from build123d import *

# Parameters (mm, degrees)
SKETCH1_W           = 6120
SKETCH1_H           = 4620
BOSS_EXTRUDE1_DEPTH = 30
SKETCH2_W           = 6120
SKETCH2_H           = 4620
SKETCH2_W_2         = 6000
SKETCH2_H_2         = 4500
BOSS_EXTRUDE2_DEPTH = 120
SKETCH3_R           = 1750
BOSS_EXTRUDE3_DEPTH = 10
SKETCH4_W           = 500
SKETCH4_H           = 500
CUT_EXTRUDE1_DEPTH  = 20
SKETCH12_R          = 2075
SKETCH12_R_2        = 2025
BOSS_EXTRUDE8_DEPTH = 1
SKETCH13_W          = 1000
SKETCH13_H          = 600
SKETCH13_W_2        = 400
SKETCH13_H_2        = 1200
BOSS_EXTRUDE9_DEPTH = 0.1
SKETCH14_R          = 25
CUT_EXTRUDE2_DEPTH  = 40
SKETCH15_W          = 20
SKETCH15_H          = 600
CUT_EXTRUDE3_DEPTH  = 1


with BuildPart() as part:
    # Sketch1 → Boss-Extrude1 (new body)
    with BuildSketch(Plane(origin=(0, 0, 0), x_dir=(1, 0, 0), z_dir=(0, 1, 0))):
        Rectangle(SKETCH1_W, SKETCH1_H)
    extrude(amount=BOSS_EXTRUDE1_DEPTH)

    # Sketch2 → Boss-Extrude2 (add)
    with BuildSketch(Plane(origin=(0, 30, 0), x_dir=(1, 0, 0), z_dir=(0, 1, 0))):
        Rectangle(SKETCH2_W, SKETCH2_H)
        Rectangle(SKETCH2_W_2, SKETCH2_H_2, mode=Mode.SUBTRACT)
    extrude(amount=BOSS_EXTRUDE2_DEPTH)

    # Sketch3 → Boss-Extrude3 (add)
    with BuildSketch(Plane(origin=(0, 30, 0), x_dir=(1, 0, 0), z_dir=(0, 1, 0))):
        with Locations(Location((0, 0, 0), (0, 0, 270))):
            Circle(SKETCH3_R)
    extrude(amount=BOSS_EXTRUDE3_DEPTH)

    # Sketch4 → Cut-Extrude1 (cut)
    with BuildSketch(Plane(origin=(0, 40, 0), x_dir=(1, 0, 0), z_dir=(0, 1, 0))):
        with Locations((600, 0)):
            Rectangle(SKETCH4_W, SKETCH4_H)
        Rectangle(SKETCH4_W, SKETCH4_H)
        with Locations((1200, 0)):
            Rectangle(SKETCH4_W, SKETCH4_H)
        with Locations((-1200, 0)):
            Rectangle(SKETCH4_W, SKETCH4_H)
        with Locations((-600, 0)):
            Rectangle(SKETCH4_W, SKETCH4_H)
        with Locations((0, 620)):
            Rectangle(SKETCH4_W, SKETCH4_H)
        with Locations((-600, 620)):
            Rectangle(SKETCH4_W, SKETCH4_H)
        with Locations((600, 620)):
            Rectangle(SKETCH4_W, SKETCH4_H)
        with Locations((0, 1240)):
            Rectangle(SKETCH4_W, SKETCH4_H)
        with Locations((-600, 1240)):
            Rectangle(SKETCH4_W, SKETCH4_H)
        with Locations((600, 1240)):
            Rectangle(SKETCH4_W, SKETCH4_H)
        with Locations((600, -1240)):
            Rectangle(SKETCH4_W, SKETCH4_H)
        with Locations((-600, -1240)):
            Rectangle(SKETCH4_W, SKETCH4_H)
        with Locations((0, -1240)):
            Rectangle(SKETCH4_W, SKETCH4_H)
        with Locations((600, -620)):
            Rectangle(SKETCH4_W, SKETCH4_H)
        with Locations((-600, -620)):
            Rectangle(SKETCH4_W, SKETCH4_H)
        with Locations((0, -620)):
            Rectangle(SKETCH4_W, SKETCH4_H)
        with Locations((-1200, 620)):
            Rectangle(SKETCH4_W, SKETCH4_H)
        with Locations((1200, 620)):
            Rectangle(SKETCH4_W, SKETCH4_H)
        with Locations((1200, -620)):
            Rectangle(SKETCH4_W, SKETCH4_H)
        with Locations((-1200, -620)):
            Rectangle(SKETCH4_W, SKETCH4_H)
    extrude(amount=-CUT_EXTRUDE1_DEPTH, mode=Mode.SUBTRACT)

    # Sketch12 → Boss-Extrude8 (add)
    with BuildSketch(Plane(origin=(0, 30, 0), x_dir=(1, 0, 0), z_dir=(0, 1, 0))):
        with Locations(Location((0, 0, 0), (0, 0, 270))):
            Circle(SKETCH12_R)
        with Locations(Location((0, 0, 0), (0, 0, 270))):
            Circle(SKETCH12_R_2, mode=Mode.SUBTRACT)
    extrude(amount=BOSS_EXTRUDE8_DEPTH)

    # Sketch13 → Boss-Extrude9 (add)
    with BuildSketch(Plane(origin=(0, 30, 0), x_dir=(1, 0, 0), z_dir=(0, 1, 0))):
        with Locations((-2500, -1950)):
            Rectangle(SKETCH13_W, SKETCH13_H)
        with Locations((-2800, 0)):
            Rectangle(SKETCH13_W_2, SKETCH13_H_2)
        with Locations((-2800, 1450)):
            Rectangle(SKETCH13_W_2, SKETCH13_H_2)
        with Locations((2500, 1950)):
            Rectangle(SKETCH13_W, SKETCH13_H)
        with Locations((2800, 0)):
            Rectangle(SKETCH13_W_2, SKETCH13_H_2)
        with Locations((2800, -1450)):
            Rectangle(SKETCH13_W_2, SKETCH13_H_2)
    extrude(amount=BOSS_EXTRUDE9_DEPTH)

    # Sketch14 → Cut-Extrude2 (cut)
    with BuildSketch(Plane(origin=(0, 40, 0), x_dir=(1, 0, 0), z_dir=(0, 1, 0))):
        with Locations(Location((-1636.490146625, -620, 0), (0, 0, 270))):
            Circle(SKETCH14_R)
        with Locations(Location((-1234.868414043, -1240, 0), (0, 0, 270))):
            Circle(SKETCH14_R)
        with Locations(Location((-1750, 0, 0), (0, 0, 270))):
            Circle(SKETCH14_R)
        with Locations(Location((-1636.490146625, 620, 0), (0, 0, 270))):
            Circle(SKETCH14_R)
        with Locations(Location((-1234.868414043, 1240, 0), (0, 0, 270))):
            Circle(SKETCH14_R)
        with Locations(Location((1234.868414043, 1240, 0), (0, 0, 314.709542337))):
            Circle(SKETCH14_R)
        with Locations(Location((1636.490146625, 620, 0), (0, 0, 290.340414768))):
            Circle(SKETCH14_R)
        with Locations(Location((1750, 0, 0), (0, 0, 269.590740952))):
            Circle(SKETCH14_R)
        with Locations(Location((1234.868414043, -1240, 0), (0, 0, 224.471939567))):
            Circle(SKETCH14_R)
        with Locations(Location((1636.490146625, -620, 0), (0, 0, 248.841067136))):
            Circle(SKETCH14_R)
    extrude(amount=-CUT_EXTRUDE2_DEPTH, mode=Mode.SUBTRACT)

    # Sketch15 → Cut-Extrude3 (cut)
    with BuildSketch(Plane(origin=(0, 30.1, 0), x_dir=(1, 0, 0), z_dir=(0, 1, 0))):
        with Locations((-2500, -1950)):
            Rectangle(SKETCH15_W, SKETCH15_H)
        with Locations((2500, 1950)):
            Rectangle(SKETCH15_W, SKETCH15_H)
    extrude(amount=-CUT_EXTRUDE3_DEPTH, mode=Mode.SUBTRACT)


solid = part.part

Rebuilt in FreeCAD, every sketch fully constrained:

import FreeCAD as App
import Part
import Sketcher

V = App.Vector
Q = App.Units.Quantity

doc = App.newDocument("Part")
body = doc.addObject("PartDesign::Body", "Body")

sketch1 = doc.addObject("Sketcher::SketchObject", "Sketch")
body.addObject(sketch1)
sketch1.AttachmentSupport = (doc.XZ_Plane, [""])
sketch1.MapMode = "FlatFace"
sketch1.addGeometry(Part.LineSegment(V(-3060, -2310, 0), V(-3060, 2310, 0)), False)
sketch1.addGeometry(Part.LineSegment(V(-3060, 2310, 0), V(3060, 2310, 0)), False)
sketch1.addGeometry(Part.LineSegment(V(3060, 2310, 0), V(3060, -2310, 0)), False)
sketch1.addGeometry(Part.LineSegment(V(3060, -2310, 0), V(-3060, -2310, 0)), False)
sketch1.addConstraint(Sketcher.Constraint("Coincident", 0, 2, 1, 1))
sketch1.addConstraint(Sketcher.Constraint("Coincident", 1, 2, 2, 1))
sketch1.addConstraint(Sketcher.Constraint("Coincident", 2, 2, 3, 1))
sketch1.addConstraint(Sketcher.Constraint("Coincident", 3, 2, 0, 1))
sketch1.addConstraint(Sketcher.Constraint("Vertical", 0))
sketch1.addConstraint(Sketcher.Constraint("Horizontal", 1))
sketch1.addConstraint(Sketcher.Constraint("Vertical", 2))
sketch1.addConstraint(Sketcher.Constraint("Horizontal", 3))
sketch1.addConstraint(Sketcher.Constraint("Symmetric", 0, 2, 2, 2, -1, 1))
sketch1.addConstraint(Sketcher.Constraint("DistanceX", 1, 1, 1, 2, Q("6120 mm")))
sketch1.addConstraint(Sketcher.Constraint("DistanceY", 0, 1, 0, 2, Q("4620 mm")))
pad1 = doc.addObject("PartDesign::Pad", "Pad")
body.addObject(pad1)
pad1.Profile = sketch1
pad1.Length = 30
pad1.Reversed = True

sketch2 = doc.addObject("Sketcher::SketchObject", "Sketch001")
body.addObject(sketch2)
sketch2.AttachmentSupport = (doc.XZ_Plane, [""])
sketch2.MapMode = "FlatFace"
sketch2.AttachmentOffset = App.Placement(V(0, 0, -30), App.Rotation())
sketch2.addGeometry(Part.LineSegment(V(-3060, -2310, 0), V(-3060, 2310, 0)), False)
sketch2.addGeometry(Part.LineSegment(V(-3060, 2310, 0), V(3060, 2310, 0)), False)
sketch2.addGeometry(Part.LineSegment(V(3060, 2310, 0), V(3060, -2310, 0)), False)
sketch2.addGeometry(Part.LineSegment(V(3060, -2310, 0), V(-3060, -2310, 0)), False)
sketch2.addGeometry(Part.LineSegment(V(3000, 2250, 0), V(-3000, 2250, 0)), False)
sketch2.addGeometry(Part.LineSegment(V(-3000, 2250, 0), V(-3000, -2250, 0)), False)
sketch2.addGeometry(Part.LineSegment(V(-3000, -2250, 0), V(3000, -2250, 0)), False)
sketch2.addGeometry(Part.LineSegment(V(3000, -2250, 0), V(3000, 2250, 0)), False)
sketch2.addConstraint(Sketcher.Constraint("Coincident", 0, 2, 1, 1))
sketch2.addConstraint(Sketcher.Constraint("Coincident", 1, 2, 2, 1))
sketch2.addConstraint(Sketcher.Constraint("Coincident", 2, 2, 3, 1))
sketch2.addConstraint(Sketcher.Constraint("Coincident", 3, 2, 0, 1))
sketch2.addConstraint(Sketcher.Constraint("Coincident", 4, 2, 5, 1))
sketch2.addConstraint(Sketcher.Constraint("Coincident", 5, 2, 6, 1))
sketch2.addConstraint(Sketcher.Constraint("Coincident", 6, 2, 7, 1))
sketch2.addConstraint(Sketcher.Constraint("Coincident", 7, 2, 4, 1))
sketch2.addConstraint(Sketcher.Constraint("Vertical", 0))
sketch2.addConstraint(Sketcher.Constraint("Horizontal", 1))
sketch2.addConstraint(Sketcher.Constraint("Vertical", 2))
sketch2.addConstraint(Sketcher.Constraint("Horizontal", 3))
sketch2.addConstraint(Sketcher.Constraint("Horizontal", 4))
sketch2.addConstraint(Sketcher.Constraint("Vertical", 5))
sketch2.addConstraint(Sketcher.Constraint("Horizontal", 6))
sketch2.addConstraint(Sketcher.Constraint("Vertical", 7))
sketch2.addConstraint(Sketcher.Constraint("Symmetric", 0, 2, 2, 2, -1, 1))
sketch2.addConstraint(Sketcher.Constraint("Symmetric", 4, 2, 6, 2, -1, 1))
sketch2.addConstraint(Sketcher.Constraint("DistanceX", 1, 1, 1, 2, Q("6120 mm")))
sketch2.addConstraint(Sketcher.Constraint("DistanceX", 4, 2, 4, 1, Q("6000 mm")))
sketch2.addConstraint(Sketcher.Constraint("DistanceY", 0, 1, 0, 2, Q("4620 mm")))
sketch2.addConstraint(Sketcher.Constraint("DistanceY", 5, 2, 5, 1, Q("4500 mm")))
pad2 = doc.addObject("PartDesign::Pad", "Pad001")
body.addObject(pad2)
pad2.Profile = sketch2
pad2.Length = 120
pad2.Reversed = True

sketch3 = doc.addObject("Sketcher::SketchObject", "Sketch002")
body.addObject(sketch3)
sketch3.AttachmentSupport = (doc.XZ_Plane, [""])
sketch3.MapMode = "FlatFace"
sketch3.AttachmentOffset = App.Placement(V(0, 0, -30), App.Rotation())
sketch3.addGeometry(Part.Circle(V(0, 0, 0), V(0, 0, 1), 1750), False)
sketch3.addConstraint(Sketcher.Constraint("Coincident", 0, 3, -1, 1))
sketch3.addConstraint(Sketcher.Constraint("Diameter", 0, Q("3500 mm")))
pad3 = doc.addObject("PartDesign::Pad", "Pad002")
body.addObject(pad3)
pad3.Profile = sketch3
pad3.Length = 10
pad3.Reversed = True

sketch4 = doc.addObject("Sketcher::SketchObject", "Sketch003")
body.addObject(sketch4)
sketch4.AttachmentSupport = (doc.XZ_Plane, [""])
sketch4.MapMode = "FlatFace"
sketch4.AttachmentOffset = App.Placement(V(0, 0, -40), App.Rotation())
sketch4.addGeometry(Part.LineSegment(V(350, -250, 0), V(350, 250, 0)), False)
sketch4.addGeometry(Part.LineSegment(V(350, 250, 0), V(850, 250, 0)), False)
sketch4.addGeometry(Part.LineSegment(V(850, 250, 0), V(850, -250, 0)), False)
sketch4.addGeometry(Part.LineSegment(V(850, -250, 0), V(350, -250, 0)), False)
sketch4.addGeometry(Part.LineSegment(V(-250, -250, 0), V(-250, 250, 0)), False)
sketch4.addGeometry(Part.LineSegment(V(-250, 250, 0), V(250, 250, 0)), False)
sketch4.addGeometry(Part.LineSegment(V(250, 250, 0), V(250, -250, 0)), False)
sketch4.addGeometry(Part.LineSegment(V(250, -250, 0), V(-250, -250, 0)), False)
sketch4.addGeometry(Part.LineSegment(V(950, -250, 0), V(950, 250, 0)), False)
sketch4.addGeometry(Part.LineSegment(V(950, 250, 0), V(1450, 250, 0)), False)
sketch4.addGeometry(Part.LineSegment(V(1450, 250, 0), V(1450, -250, 0)), False)
sketch4.addGeometry(Part.LineSegment(V(1450, -250, 0), V(950, -250, 0)), False)
sketch4.addGeometry(Part.LineSegment(V(-1450, -250, 0), V(-1450, 250, 0)), False)
sketch4.addGeometry(Part.LineSegment(V(-1450, 250, 0), V(-950, 250, 0)), False)
sketch4.addGeometry(Part.LineSegment(V(-950, 250, 0), V(-950, -250, 0)), False)
sketch4.addGeometry(Part.LineSegment(V(-950, -250, 0), V(-1450, -250, 0)), False)
sketch4.addGeometry(Part.LineSegment(V(-850, -250, 0), V(-850, 250, 0)), False)
sketch4.addGeometry(Part.LineSegment(V(-850, 250, 0), V(-350, 250, 0)), False)
sketch4.addGeometry(Part.LineSegment(V(-350, 250, 0), V(-350, -250, 0)), False)
sketch4.addGeometry(Part.LineSegment(V(-350, -250, 0), V(-850, -250, 0)), False)
sketch4.addGeometry(Part.LineSegment(V(-250, -870, 0), V(-250, -370, 0)), False)
sketch4.addGeometry(Part.LineSegment(V(-250, -370, 0), V(250, -370, 0)), False)
sketch4.addGeometry(Part.LineSegment(V(250, -370, 0), V(250, -870, 0)), False)
sketch4.addGeometry(Part.LineSegment(V(250, -870, 0), V(-250, -870, 0)), False)
sketch4.addGeometry(Part.LineSegment(V(-850, -870, 0), V(-850, -370, 0)), False)
sketch4.addGeometry(Part.LineSegment(V(-850, -370, 0), V(-350, -370, 0)), False)
sketch4.addGeometry(Part.LineSegment(V(-350, -370, 0), V(-350, -870, 0)), False)
sketch4.addGeometry(Part.LineSegment(V(-350, -870, 0), V(-850, -870, 0)), False)
sketch4.addGeometry(Part.LineSegment(V(350, -870, 0), V(350, -370, 0)), False)
sketch4.addGeometry(Part.LineSegment(V(350, -370, 0), V(850, -370, 0)), False)
sketch4.addGeometry(Part.LineSegment(V(850, -370, 0), V(850, -870, 0)), False)
sketch4.addGeometry(Part.LineSegment(V(850, -870, 0), V(350, -870, 0)), False)
sketch4.addGeometry(Part.LineSegment(V(-250, -1490, 0), V(-250, -990, 0)), False)
sketch4.addGeometry(Part.LineSegment(V(-250, -990, 0), V(250, -990, 0)), False)
sketch4.addGeometry(Part.LineSegment(V(250, -990, 0), V(250, -1490, 0)), False)
sketch4.addGeometry(Part.LineSegment(V(250, -1490, 0), V(-250, -1490, 0)), False)
sketch4.addGeometry(Part.LineSegment(V(-850, -1490, 0), V(-850, -990, 0)), False)
sketch4.addGeometry(Part.LineSegment(V(-850, -990, 0), V(-350, -990, 0)), False)
sketch4.addGeometry(Part.LineSegment(V(-350, -990, 0), V(-350, -1490, 0)), False)
sketch4.addGeometry(Part.LineSegment(V(-350, -1490, 0), V(-850, -1490, 0)), False)
sketch4.addGeometry(Part.LineSegment(V(350, -1490, 0), V(350, -990, 0)), False)
sketch4.addGeometry(Part.LineSegment(V(350, -990, 0), V(850, -990, 0)), False)
sketch4.addGeometry(Part.LineSegment(V(850, -990, 0), V(850, -1490, 0)), False)
sketch4.addGeometry(Part.LineSegment(V(850, -1490, 0), V(350, -1490, 0)), False)
sketch4.addGeometry(Part.LineSegment(V(350, 990, 0), V(350, 1490, 0)), False)
sketch4.addGeometry(Part.LineSegment(V(350, 1490, 0), V(850, 1490, 0)), False)
sketch4.addGeometry(Part.LineSegment(V(850, 1490, 0), V(850, 990, 0)), False)
sketch4.addGeometry(Part.LineSegment(V(850, 990, 0), V(350, 990, 0)), False)
sketch4.addGeometry(Part.LineSegment(V(-850, 990, 0), V(-850, 1490, 0)), False)
sketch4.addGeometry(Part.LineSegment(V(-850, 1490, 0), V(-350, 1490, 0)), False)
sketch4.addGeometry(Part.LineSegment(V(-350, 1490, 0), V(-350, 990, 0)), False)
sketch4.addGeometry(Part.LineSegment(V(-350, 990, 0), V(-850, 990, 0)), False)
sketch4.addGeometry(Part.LineSegment(V(-250, 990, 0), V(-250, 1490, 0)), False)
sketch4.addGeometry(Part.LineSegment(V(-250, 1490, 0), V(250, 1490, 0)), False)
sketch4.addGeometry(Part.LineSegment(V(250, 1490, 0), V(250, 990, 0)), False)
sketch4.addGeometry(Part.LineSegment(V(250, 990, 0), V(-250, 990, 0)), False)
sketch4.addGeometry(Part.LineSegment(V(350, 370, 0), V(350, 870, 0)), False)
sketch4.addGeometry(Part.LineSegment(V(350, 870, 0), V(850, 870, 0)), False)
sketch4.addGeometry(Part.LineSegment(V(850, 870, 0), V(850, 370, 0)), False)
sketch4.addGeometry(Part.LineSegment(V(850, 370, 0), V(350, 370, 0)), False)
sketch4.addGeometry(Part.LineSegment(V(-850, 370, 0), V(-850, 870, 0)), False)
sketch4.addGeometry(Part.LineSegment(V(-850, 870, 0), V(-350, 870, 0)), False)
sketch4.addGeometry(Part.LineSegment(V(-350, 870, 0), V(-350, 370, 0)), False)
sketch4.addGeometry(Part.LineSegment(V(-350, 370, 0), V(-850, 370, 0)), False)
sketch4.addGeometry(Part.LineSegment(V(-250, 370, 0), V(-250, 870, 0)), False)
sketch4.addGeometry(Part.LineSegment(V(-250, 870, 0), V(250, 870, 0)), False)
sketch4.addGeometry(Part.LineSegment(V(250, 870, 0), V(250, 370, 0)), False)
sketch4.addGeometry(Part.LineSegment(V(250, 370, 0), V(-250, 370, 0)), False)
sketch4.addGeometry(Part.LineSegment(V(-1450, -870, 0), V(-1450, -370, 0)), False)
sketch4.addGeometry(Part.LineSegment(V(-1450, -370, 0), V(-950, -370, 0)), False)
sketch4.addGeometry(Part.LineSegment(V(-950, -370, 0), V(-950, -870, 0)), False)
sketch4.addGeometry(Part.LineSegment(V(-950, -870, 0), V(-1450, -870, 0)), False)
sketch4.addGeometry(Part.LineSegment(V(950, -870, 0), V(950, -370, 0)), False)
sketch4.addGeometry(Part.LineSegment(V(950, -370, 0), V(1450, -370, 0)), False)
sketch4.addGeometry(Part.LineSegment(V(1450, -370, 0), V(1450, -870, 0)), False)
sketch4.addGeometry(Part.LineSegment(V(1450, -870, 0), V(950, -870, 0)), False)
sketch4.addGeometry(Part.LineSegment(V(950, 370, 0), V(950, 870, 0)), False)
sketch4.addGeometry(Part.LineSegment(V(950, 870, 0), V(1450, 870, 0)), False)
sketch4.addGeometry(Part.LineSegment(V(1450, 870, 0), V(1450, 370, 0)), False)
sketch4.addGeometry(Part.LineSegment(V(1450, 370, 0), V(950, 370, 0)), False)
sketch4.addGeometry(Part.LineSegment(V(-1450, 370, 0), V(-1450, 870, 0)), False)
sketch4.addGeometry(Part.LineSegment(V(-1450, 870, 0), V(-950, 870, 0)), False)
sketch4.addGeometry(Part.LineSegment(V(-950, 870, 0), V(-950, 370, 0)), False)
sketch4.addGeometry(Part.LineSegment(V(-950, 370, 0), V(-1450, 370, 0)), False)
sketch4.addConstraint(Sketcher.Constraint("Coincident", 0, 2, 1, 1))
sketch4.addConstraint(Sketcher.Constraint("Coincident", 1, 2, 2, 1))
sketch4.addConstraint(Sketcher.Constraint("Coincident", 2, 2, 3, 1))
sketch4.addConstraint(Sketcher.Constraint("Coincident", 3, 2, 0, 1))
sketch4.addConstraint(Sketcher.Constraint("Coincident", 4, 2, 5, 1))
sketch4.addConstraint(Sketcher.Constraint("Coincident", 5, 2, 6, 1))
sketch4.addConstraint(Sketcher.Constraint("Coincident", 6, 2, 7, 1))
sketch4.addConstraint(Sketcher.Constraint("Coincident", 7, 2, 4, 1))
sketch4.addConstraint(Sketcher.Constraint("Coincident", 8, 2, 9, 1))
sketch4.addConstraint(Sketcher.Constraint("Coincident", 9, 2, 10, 1))
sketch4.addConstraint(Sketcher.Constraint("Coincident", 10, 2, 11, 1))
sketch4.addConstraint(Sketcher.Constraint("Coincident", 11, 2, 8, 1))
sketch4.addConstraint(Sketcher.Constraint("Coincident", 12, 2, 13, 1))
sketch4.addConstraint(Sketcher.Constraint("Coincident", 13, 2, 14, 1))
sketch4.addConstraint(Sketcher.Constraint("Coincident", 14, 2, 15, 1))
sketch4.addConstraint(Sketcher.Constraint("Coincident", 15, 2, 12, 1))
sketch4.addConstraint(Sketcher.Constraint("Coincident", 16, 2, 17, 1))
sketch4.addConstraint(Sketcher.Constraint("Coincident", 17, 2, 18, 1))
sketch4.addConstraint(Sketcher.Constraint("Coincident", 18, 2, 19, 1))
sketch4.addConstraint(Sketcher.Constraint("Coincident", 19, 2, 16, 1))
sketch4.addConstraint(Sketcher.Constraint("Coincident", 20, 2, 21, 1))
sketch4.addConstraint(Sketcher.Constraint("Coincident", 21, 2, 22, 1))
sketch4.addConstraint(Sketcher.Constraint("Coincident", 22, 2, 23, 1))
sketch4.addConstraint(Sketcher.Constraint("Coincident", 23, 2, 20, 1))
sketch4.addConstraint(Sketcher.Constraint("Coincident", 24, 2, 25, 1))
sketch4.addConstraint(Sketcher.Constraint("Coincident", 25, 2, 26, 1))
sketch4.addConstraint(Sketcher.Constraint("Coincident", 26, 2, 27, 1))
sketch4.addConstraint(Sketcher.Constraint("Coincident", 27, 2, 24, 1))
sketch4.addConstraint(Sketcher.Constraint("Coincident", 28, 2, 29, 1))
sketch4.addConstraint(Sketcher.Constraint("Coincident", 29, 2, 30, 1))
sketch4.addConstraint(Sketcher.Constraint("Coincident", 30, 2, 31, 1))
sketch4.addConstraint(Sketcher.Constraint("Coincident", 31, 2, 28, 1))
sketch4.addConstraint(Sketcher.Constraint("Coincident", 32, 2, 33, 1))
sketch4.addConstraint(Sketcher.Constraint("Coincident", 33, 2, 34, 1))
sketch4.addConstraint(Sketcher.Constraint("Coincident", 34, 2, 35, 1))
sketch4.addConstraint(Sketcher.Constraint("Coincident", 35, 2, 32, 1))
sketch4.addConstraint(Sketcher.Constraint("Coincident", 36, 2, 37, 1))
sketch4.addConstraint(Sketcher.Constraint("Coincident", 37, 2, 38, 1))
sketch4.addConstraint(Sketcher.Constraint("Coincident", 38, 2, 39, 1))
sketch4.addConstraint(Sketcher.Constraint("Coincident", 39, 2, 36, 1))
sketch4.addConstraint(Sketcher.Constraint("Coincident", 40, 2, 41, 1))
sketch4.addConstraint(Sketcher.Constraint("Coincident", 41, 2, 42, 1))
sketch4.addConstraint(Sketcher.Constraint("Coincident", 42, 2, 43, 1))
sketch4.addConstraint(Sketcher.Constraint("Coincident", 43, 2, 40, 1))
sketch4.addConstraint(Sketcher.Constraint("Coincident", 44, 2, 45, 1))
sketch4.addConstraint(Sketcher.Constraint("Coincident", 45, 2, 46, 1))
sketch4.addConstraint(Sketcher.Constraint("Coincident", 46, 2, 47, 1))
sketch4.addConstraint(Sketcher.Constraint("Coincident", 47, 2, 44, 1))
sketch4.addConstraint(Sketcher.Constraint("Coincident", 48, 2, 49, 1))
sketch4.addConstraint(Sketcher.Constraint("Coincident", 49, 2, 50, 1))
sketch4.addConstraint(Sketcher.Constraint("Coincident", 50, 2, 51, 1))
sketch4.addConstraint(Sketcher.Constraint("Coincident", 51, 2, 48, 1))
sketch4.addConstraint(Sketcher.Constraint("Coincident", 52, 2, 53, 1))
sketch4.addConstraint(Sketcher.Constraint("Coincident", 53, 2, 54, 1))
sketch4.addConstraint(Sketcher.Constraint("Coincident", 54, 2, 55, 1))
sketch4.addConstraint(Sketcher.Constraint("Coincident", 55, 2, 52, 1))
sketch4.addConstraint(Sketcher.Constraint("Coincident", 56, 2, 57, 1))
sketch4.addConstraint(Sketcher.Constraint("Coincident", 57, 2, 58, 1))
sketch4.addConstraint(Sketcher.Constraint("Coincident", 58, 2, 59, 1))
sketch4.addConstraint(Sketcher.Constraint("Coincident", 59, 2, 56, 1))
sketch4.addConstraint(Sketcher.Constraint("Coincident", 60, 2, 61, 1))
sketch4.addConstraint(Sketcher.Constraint("Coincident", 61, 2, 62, 1))
sketch4.addConstraint(Sketcher.Constraint("Coincident", 62, 2, 63, 1))
sketch4.addConstraint(Sketcher.Constraint("Coincident", 63, 2, 60, 1))
sketch4.addConstraint(Sketcher.Constraint("Coincident", 64, 2, 65, 1))
sketch4.addConstraint(Sketcher.Constraint("Coincident", 65, 2, 66, 1))
sketch4.addConstraint(Sketcher.Constraint("Coincident", 66, 2, 67, 1))
sketch4.addConstraint(Sketcher.Constraint("Coincident", 67, 2, 64, 1))
sketch4.addConstraint(Sketcher.Constraint("Coincident", 68, 2, 69, 1))
sketch4.addConstraint(Sketcher.Constraint("Coincident", 69, 2, 70, 1))
sketch4.addConstraint(Sketcher.Constraint("Coincident", 70, 2, 71, 1))
sketch4.addConstraint(Sketcher.Constraint("Coincident", 71, 2, 68, 1))
sketch4.addConstraint(Sketcher.Constraint("Coincident", 72, 2, 73, 1))
sketch4.addConstraint(Sketcher.Constraint("Coincident", 73, 2, 74, 1))
sketch4.addConstraint(Sketcher.Constraint("Coincident", 74, 2, 75, 1))
sketch4.addConstraint(Sketcher.Constraint("Coincident", 75, 2, 72, 1))
sketch4.addConstraint(Sketcher.Constraint("Coincident", 76, 2, 77, 1))
sketch4.addConstraint(Sketcher.Constraint("Coincident", 77, 2, 78, 1))
sketch4.addConstraint(Sketcher.Constraint("Coincident", 78, 2, 79, 1))
sketch4.addConstraint(Sketcher.Constraint("Coincident", 79, 2, 76, 1))
sketch4.addConstraint(Sketcher.Constraint("Coincident", 80, 2, 81, 1))
sketch4.addConstraint(Sketcher.Constraint("Coincident", 81, 2, 82, 1))
sketch4.addConstraint(Sketcher.Constraint("Coincident", 82, 2, 83, 1))
sketch4.addConstraint(Sketcher.Constraint("Coincident", 83, 2, 80, 1))
sketch4.addConstraint(Sketcher.Constraint("Vertical", 0))
sketch4.addConstraint(Sketcher.Constraint("Horizontal", 1))
sketch4.addConstraint(Sketcher.Constraint("Vertical", 2))
sketch4.addConstraint(Sketcher.Constraint("Horizontal", 3))
sketch4.addConstraint(Sketcher.Constraint("Vertical", 4))
sketch4.addConstraint(Sketcher.Constraint("Horizontal", 5))
sketch4.addConstraint(Sketcher.Constraint("Vertical", 6))
sketch4.addConstraint(Sketcher.Constraint("Horizontal", 7))
sketch4.addConstraint(Sketcher.Constraint("Vertical", 8))
sketch4.addConstraint(Sketcher.Constraint("Horizontal", 9))
sketch4.addConstraint(Sketcher.Constraint("Vertical", 10))
sketch4.addConstraint(Sketcher.Constraint("Horizontal", 11))
sketch4.addConstraint(Sketcher.Constraint("Vertical", 12))
sketch4.addConstraint(Sketcher.Constraint("Horizontal", 13))
sketch4.addConstraint(Sketcher.Constraint("Vertical", 14))
sketch4.addConstraint(Sketcher.Constraint("Horizontal", 15))
sketch4.addConstraint(Sketcher.Constraint("Vertical", 16))
sketch4.addConstraint(Sketcher.Constraint("Horizontal", 17))
sketch4.addConstraint(Sketcher.Constraint("Vertical", 18))
sketch4.addConstraint(Sketcher.Constraint("Horizontal", 19))
sketch4.addConstraint(Sketcher.Constraint("Vertical", 20))
sketch4.addConstraint(Sketcher.Constraint("Horizontal", 21))
sketch4.addConstraint(Sketcher.Constraint("Vertical", 22))
sketch4.addConstraint(Sketcher.Constraint("Horizontal", 23))
sketch4.addConstraint(Sketcher.Constraint("Vertical", 24))
sketch4.addConstraint(Sketcher.Constraint("Horizontal", 25))
sketch4.addConstraint(Sketcher.Constraint("Vertical", 26))
sketch4.addConstraint(Sketcher.Constraint("Horizontal", 27))
sketch4.addConstraint(Sketcher.Constraint("Vertical", 28))
sketch4.addConstraint(Sketcher.Constraint("Horizontal", 29))
sketch4.addConstraint(Sketcher.Constraint("Vertical", 30))
sketch4.addConstraint(Sketcher.Constraint("Horizontal", 31))
sketch4.addConstraint(Sketcher.Constraint("Vertical", 32))
sketch4.addConstraint(Sketcher.Constraint("Horizontal", 33))
sketch4.addConstraint(Sketcher.Constraint("Vertical", 34))
sketch4.addConstraint(Sketcher.Constraint("Horizontal", 35))
sketch4.addConstraint(Sketcher.Constraint("Vertical", 36))
sketch4.addConstraint(Sketcher.Constraint("Horizontal", 37))
sketch4.addConstraint(Sketcher.Constraint("Vertical", 38))
sketch4.addConstraint(Sketcher.Constraint("Horizontal", 39))
sketch4.addConstraint(Sketcher.Constraint("Vertical", 40))
sketch4.addConstraint(Sketcher.Constraint("Horizontal", 41))
sketch4.addConstraint(Sketcher.Constraint("Vertical", 42))
sketch4.addConstraint(Sketcher.Constraint("Horizontal", 43))
sketch4.addConstraint(Sketcher.Constraint("Vertical", 44))
sketch4.addConstraint(Sketcher.Constraint("Horizontal", 45))
sketch4.addConstraint(Sketcher.Constraint("Vertical", 46))
sketch4.addConstraint(Sketcher.Constraint("Horizontal", 47))
sketch4.addConstraint(Sketcher.Constraint("Vertical", 48))
sketch4.addConstraint(Sketcher.Constraint("Horizontal", 49))
sketch4.addConstraint(Sketcher.Constraint("Vertical", 50))
sketch4.addConstraint(Sketcher.Constraint("Horizontal", 51))
sketch4.addConstraint(Sketcher.Constraint("Vertical", 52))
sketch4.addConstraint(Sketcher.Constraint("Horizontal", 53))
sketch4.addConstraint(Sketcher.Constraint("Vertical", 54))
sketch4.addConstraint(Sketcher.Constraint("Horizontal", 55))
sketch4.addConstraint(Sketcher.Constraint("Vertical", 56))
sketch4.addConstraint(Sketcher.Constraint("Horizontal", 57))
sketch4.addConstraint(Sketcher.Constraint("Vertical", 58))
sketch4.addConstraint(Sketcher.Constraint("Horizontal", 59))
sketch4.addConstraint(Sketcher.Constraint("Vertical", 60))
sketch4.addConstraint(Sketcher.Constraint("Horizontal", 61))
sketch4.addConstraint(Sketcher.Constraint("Vertical", 62))
sketch4.addConstraint(Sketcher.Constraint("Horizontal", 63))
sketch4.addConstraint(Sketcher.Constraint("Vertical", 64))
sketch4.addConstraint(Sketcher.Constraint("Horizontal", 65))
sketch4.addConstraint(Sketcher.Constraint("Vertical", 66))
sketch4.addConstraint(Sketcher.Constraint("Horizontal", 67))
sketch4.addConstraint(Sketcher.Constraint("Vertical", 68))
sketch4.addConstraint(Sketcher.Constraint("Horizontal", 69))
sketch4.addConstraint(Sketcher.Constraint("Vertical", 70))
sketch4.addConstraint(Sketcher.Constraint("Horizontal", 71))
sketch4.addConstraint(Sketcher.Constraint("Vertical", 72))
sketch4.addConstraint(Sketcher.Constraint("Horizontal", 73))
sketch4.addConstraint(Sketcher.Constraint("Vertical", 74))
sketch4.addConstraint(Sketcher.Constraint("Horizontal", 75))
sketch4.addConstraint(Sketcher.Constraint("Vertical", 76))
sketch4.addConstraint(Sketcher.Constraint("Horizontal", 77))
sketch4.addConstraint(Sketcher.Constraint("Vertical", 78))
sketch4.addConstraint(Sketcher.Constraint("Horizontal", 79))
sketch4.addConstraint(Sketcher.Constraint("Vertical", 80))
sketch4.addConstraint(Sketcher.Constraint("Horizontal", 81))
sketch4.addConstraint(Sketcher.Constraint("Vertical", 82))
sketch4.addConstraint(Sketcher.Constraint("Horizontal", 83))
sketch4.addConstraint(Sketcher.Constraint("Symmetric", 4, 2, 6, 2, -1, 1))
sketch4.addConstraint(Sketcher.Constraint("Symmetric", 10, 2, 12, 2, -1, 1))
sketch4.addConstraint(Sketcher.Constraint("Symmetric", 8, 2, 14, 2, -1, 1))
sketch4.addConstraint(Sketcher.Constraint("Symmetric", 2, 2, 16, 2, -1, 1))
sketch4.addConstraint(Sketcher.Constraint("Symmetric", 0, 2, 18, 2, -1, 1))
sketch4.addConstraint(Sketcher.Constraint("Symmetric", 38, 2, 44, 2, -1, 1))
sketch4.addConstraint(Sketcher.Constraint("Symmetric", 36, 2, 46, 2, -1, 1))
sketch4.addConstraint(Sketcher.Constraint("Symmetric", 42, 2, 48, 2, -1, 1))
sketch4.addConstraint(Sketcher.Constraint("Symmetric", 40, 2, 50, 2, -1, 1))
sketch4.addConstraint(Sketcher.Constraint("Symmetric", 34, 2, 52, 2, -1, 1))
sketch4.addConstraint(Sketcher.Constraint("Symmetric", 32, 2, 54, 2, -1, 1))
sketch4.addConstraint(Sketcher.Constraint("Symmetric", 26, 2, 56, 2, -1, 1))
sketch4.addConstraint(Sketcher.Constraint("Symmetric", 24, 2, 58, 2, -1, 1))
sketch4.addConstraint(Sketcher.Constraint("Symmetric", 30, 2, 60, 2, -1, 1))
sketch4.addConstraint(Sketcher.Constraint("Symmetric", 28, 2, 62, 2, -1, 1))
sketch4.addConstraint(Sketcher.Constraint("Symmetric", 22, 2, 64, 2, -1, 1))
sketch4.addConstraint(Sketcher.Constraint("Symmetric", 20, 2, 66, 2, -1, 1))
sketch4.addConstraint(Sketcher.Constraint("Symmetric", 70, 2, 76, 2, -1, 1))
sketch4.addConstraint(Sketcher.Constraint("Symmetric", 68, 2, 78, 2, -1, 1))
sketch4.addConstraint(Sketcher.Constraint("Symmetric", 74, 2, 80, 2, -1, 1))
sketch4.addConstraint(Sketcher.Constraint("Symmetric", 72, 2, 82, 2, -1, 1))
sketch4.addConstraint(Sketcher.Constraint("Symmetric", 25, 2, 28, 2, -2))
sketch4.addConstraint(Sketcher.Constraint("Symmetric", 27, 2, 30, 2, -2))
sketch4.addConstraint(Sketcher.Constraint("Symmetric", 37, 2, 40, 2, -2))
sketch4.addConstraint(Sketcher.Constraint("Symmetric", 39, 2, 42, 2, -2))
sketch4.addConstraint(Sketcher.Constraint("Symmetric", 69, 2, 72, 2, -2))
sketch4.addConstraint(Sketcher.Constraint("Symmetric", 71, 2, 74, 2, -2))
sketch4.addConstraint(Sketcher.Constraint("Horizontal", 1, 2, 4, 2))
sketch4.addConstraint(Sketcher.Constraint("Horizontal", 3, 2, 6, 2))
sketch4.addConstraint(Sketcher.Constraint("Horizontal", 5, 2, 8, 2))
sketch4.addConstraint(Sketcher.Constraint("Horizontal", 7, 2, 10, 2))
sketch4.addConstraint(Sketcher.Constraint("Horizontal", 21, 2, 24, 2))
sketch4.addConstraint(Sketcher.Constraint("Horizontal", 23, 2, 26, 2))
sketch4.addConstraint(Sketcher.Constraint("Horizontal", 33, 2, 36, 2))
sketch4.addConstraint(Sketcher.Constraint("Horizontal", 35, 2, 38, 2))
sketch4.addConstraint(Sketcher.Constraint("Horizontal", 29, 2, 68, 2))
sketch4.addConstraint(Sketcher.Constraint("Horizontal", 31, 2, 70, 2))
sketch4.addConstraint(Sketcher.Constraint("Vertical", 7, 2, 20, 2))
sketch4.addConstraint(Sketcher.Constraint("Vertical", 6, 2, 21, 2))
sketch4.addConstraint(Sketcher.Constraint("Vertical", 19, 2, 24, 2))
sketch4.addConstraint(Sketcher.Constraint("Vertical", 18, 2, 25, 2))
sketch4.addConstraint(Sketcher.Constraint("Vertical", 23, 2, 32, 2))
sketch4.addConstraint(Sketcher.Constraint("Vertical", 22, 2, 33, 2))
sketch4.addConstraint(Sketcher.Constraint("Vertical", 27, 2, 36, 2))
sketch4.addConstraint(Sketcher.Constraint("Vertical", 26, 2, 37, 2))
sketch4.addConstraint(Sketcher.Constraint("Vertical", 15, 2, 68, 2))
sketch4.addConstraint(Sketcher.Constraint("Vertical", 14, 2, 69, 2))
sketch4.addConstraint(Sketcher.Constraint("Equal", 3, 5))
sketch4.addConstraint(Sketcher.Constraint("Equal", 7, 9))
sketch4.addConstraint(Sketcher.Constraint("Equal", 83, 0))
sketch4.addConstraint(Sketcher.Constraint("Equal", 18, 20))
sketch4.addConstraint(Sketcher.Constraint("Equal", 30, 32))
sketch4.addConstraint(Sketcher.Constraint("DistanceX", 1, 1, 1, 2, Q("500 mm")))
sketch4.addConstraint(Sketcher.Constraint("DistanceX", -1, 1, 0, 2, Q("350 mm")))
sketch4.addConstraint(Sketcher.Constraint("DistanceX", -1, 1, 8, 2, Q("950 mm")))
sketch4.addConstraint(Sketcher.Constraint("DistanceY", 20, 2, -1, 1, Q("370 mm")))
sketch4.addConstraint(Sketcher.Constraint("DistanceY", 32, 2, -1, 1, Q("990 mm")))
pocket1 = doc.addObject("PartDesign::Pocket", "Pocket")
body.addObject(pocket1)
pocket1.Profile = sketch4
pocket1.Length = 20
pocket1.Reversed = True

sketch5 = doc.addObject("Sketcher::SketchObject", "Sketch004")
body.addObject(sketch5)
sketch5.AttachmentSupport = (doc.XZ_Plane, [""])
sketch5.MapMode = "FlatFace"
sketch5.AttachmentOffset = App.Placement(V(0, 0, -30), App.Rotation())
sketch5.addGeometry(Part.Circle(V(0, 0, 0), V(0, 0, 1), 2075), False)
sketch5.addGeometry(Part.Circle(V(0, 0, 0), V(0, 0, 1), 2025), False)
sketch5.addConstraint(Sketcher.Constraint("Coincident", 0, 3, -1, 1))
sketch5.addConstraint(Sketcher.Constraint("Coincident", 1, 3, -1, 1))
sketch5.addConstraint(Sketcher.Constraint("Diameter", 0, Q("4150 mm")))
sketch5.addConstraint(Sketcher.Constraint("Diameter", 1, Q("4050 mm")))
pad4 = doc.addObject("PartDesign::Pad", "Pad003")
body.addObject(pad4)
pad4.Profile = sketch5
pad4.Length = 1
pad4.Reversed = True

sketch6 = doc.addObject("Sketcher::SketchObject", "Sketch005")
body.addObject(sketch6)
sketch6.AttachmentSupport = (doc.XZ_Plane, [""])
sketch6.MapMode = "FlatFace"
sketch6.AttachmentOffset = App.Placement(V(0, 0, -30), App.Rotation())
sketch6.addGeometry(Part.LineSegment(V(-3000, 1650, 0), V(-3000, 2250, 0)), False)
sketch6.addGeometry(Part.LineSegment(V(-3000, 2250, 0), V(-2000, 2250, 0)), False)
sketch6.addGeometry(Part.LineSegment(V(-2000, 2250, 0), V(-2000, 1650, 0)), False)
sketch6.addGeometry(Part.LineSegment(V(-2000, 1650, 0), V(-3000, 1650, 0)), False)
sketch6.addGeometry(Part.LineSegment(V(-3000, -600, 0), V(-3000, 600, 0)), False)
sketch6.addGeometry(Part.LineSegment(V(-3000, 600, 0), V(-2600, 600, 0)), False)
sketch6.addGeometry(Part.LineSegment(V(-2600, 600, 0), V(-2600, -600, 0)), False)
sketch6.addGeometry(Part.LineSegment(V(-2600, -600, 0), V(-3000, -600, 0)), False)
sketch6.addGeometry(Part.LineSegment(V(-3000, -2050, 0), V(-3000, -850, 0)), False)
sketch6.addGeometry(Part.LineSegment(V(-3000, -850, 0), V(-2600, -850, 0)), False)
sketch6.addGeometry(Part.LineSegment(V(-2600, -850, 0), V(-2600, -2050, 0)), False)
sketch6.addGeometry(Part.LineSegment(V(-2600, -2050, 0), V(-3000, -2050, 0)), False)
sketch6.addGeometry(Part.LineSegment(V(2000, -2250, 0), V(2000, -1650, 0)), False)
sketch6.addGeometry(Part.LineSegment(V(2000, -1650, 0), V(3000, -1650, 0)), False)
sketch6.addGeometry(Part.LineSegment(V(3000, -1650, 0), V(3000, -2250, 0)), False)
sketch6.addGeometry(Part.LineSegment(V(3000, -2250, 0), V(2000, -2250, 0)), False)
sketch6.addGeometry(Part.LineSegment(V(2600, -600, 0), V(2600, 600, 0)), False)
sketch6.addGeometry(Part.LineSegment(V(2600, 600, 0), V(3000, 600, 0)), False)
sketch6.addGeometry(Part.LineSegment(V(3000, 600, 0), V(3000, -600, 0)), False)
sketch6.addGeometry(Part.LineSegment(V(3000, -600, 0), V(2600, -600, 0)), False)
sketch6.addGeometry(Part.LineSegment(V(2600, 850, 0), V(2600, 2050, 0)), False)
sketch6.addGeometry(Part.LineSegment(V(2600, 2050, 0), V(3000, 2050, 0)), False)
sketch6.addGeometry(Part.LineSegment(V(3000, 2050, 0), V(3000, 850, 0)), False)
sketch6.addGeometry(Part.LineSegment(V(3000, 850, 0), V(2600, 850, 0)), False)
sketch6.addConstraint(Sketcher.Constraint("Coincident", 0, 2, 1, 1))
sketch6.addConstraint(Sketcher.Constraint("Coincident", 1, 2, 2, 1))
sketch6.addConstraint(Sketcher.Constraint("Coincident", 2, 2, 3, 1))
sketch6.addConstraint(Sketcher.Constraint("Coincident", 3, 2, 0, 1))
sketch6.addConstraint(Sketcher.Constraint("Coincident", 4, 2, 5, 1))
sketch6.addConstraint(Sketcher.Constraint("Coincident", 5, 2, 6, 1))
sketch6.addConstraint(Sketcher.Constraint("Coincident", 6, 2, 7, 1))
sketch6.addConstraint(Sketcher.Constraint("Coincident", 7, 2, 4, 1))
sketch6.addConstraint(Sketcher.Constraint("Coincident", 8, 2, 9, 1))
sketch6.addConstraint(Sketcher.Constraint("Coincident", 9, 2, 10, 1))
sketch6.addConstraint(Sketcher.Constraint("Coincident", 10, 2, 11, 1))
sketch6.addConstraint(Sketcher.Constraint("Coincident", 11, 2, 8, 1))
sketch6.addConstraint(Sketcher.Constraint("Coincident", 12, 2, 13, 1))
sketch6.addConstraint(Sketcher.Constraint("Coincident", 13, 2, 14, 1))
sketch6.addConstraint(Sketcher.Constraint("Coincident", 14, 2, 15, 1))
sketch6.addConstraint(Sketcher.Constraint("Coincident", 15, 2, 12, 1))
sketch6.addConstraint(Sketcher.Constraint("Coincident", 16, 2, 17, 1))
sketch6.addConstraint(Sketcher.Constraint("Coincident", 17, 2, 18, 1))
sketch6.addConstraint(Sketcher.Constraint("Coincident", 18, 2, 19, 1))
sketch6.addConstraint(Sketcher.Constraint("Coincident", 19, 2, 16, 1))
sketch6.addConstraint(Sketcher.Constraint("Coincident", 20, 2, 21, 1))
sketch6.addConstraint(Sketcher.Constraint("Coincident", 21, 2, 22, 1))
sketch6.addConstraint(Sketcher.Constraint("Coincident", 22, 2, 23, 1))
sketch6.addConstraint(Sketcher.Constraint("Coincident", 23, 2, 20, 1))
sketch6.addConstraint(Sketcher.Constraint("Vertical", 0))
sketch6.addConstraint(Sketcher.Constraint("Horizontal", 1))
sketch6.addConstraint(Sketcher.Constraint("Vertical", 2))
sketch6.addConstraint(Sketcher.Constraint("Horizontal", 3))
sketch6.addConstraint(Sketcher.Constraint("Vertical", 4))
sketch6.addConstraint(Sketcher.Constraint("Horizontal", 5))
sketch6.addConstraint(Sketcher.Constraint("Vertical", 6))
sketch6.addConstraint(Sketcher.Constraint("Horizontal", 7))
sketch6.addConstraint(Sketcher.Constraint("Vertical", 8))
sketch6.addConstraint(Sketcher.Constraint("Horizontal", 9))
sketch6.addConstraint(Sketcher.Constraint("Vertical", 10))
sketch6.addConstraint(Sketcher.Constraint("Horizontal", 11))
sketch6.addConstraint(Sketcher.Constraint("Vertical", 12))
sketch6.addConstraint(Sketcher.Constraint("Horizontal", 13))
sketch6.addConstraint(Sketcher.Constraint("Vertical", 14))
sketch6.addConstraint(Sketcher.Constraint("Horizontal", 15))
sketch6.addConstraint(Sketcher.Constraint("Vertical", 16))
sketch6.addConstraint(Sketcher.Constraint("Horizontal", 17))
sketch6.addConstraint(Sketcher.Constraint("Vertical", 18))
sketch6.addConstraint(Sketcher.Constraint("Horizontal", 19))
sketch6.addConstraint(Sketcher.Constraint("Vertical", 20))
sketch6.addConstraint(Sketcher.Constraint("Horizontal", 21))
sketch6.addConstraint(Sketcher.Constraint("Vertical", 22))
sketch6.addConstraint(Sketcher.Constraint("Horizontal", 23))
sketch6.addConstraint(Sketcher.Constraint("Symmetric", 2, 2, 12, 2, -1, 1))
sketch6.addConstraint(Sketcher.Constraint("Symmetric", 0, 2, 14, 2, -1, 1))
sketch6.addConstraint(Sketcher.Constraint("Symmetric", 6, 2, 16, 2, -1, 1))
sketch6.addConstraint(Sketcher.Constraint("Symmetric", 4, 2, 18, 2, -1, 1))
sketch6.addConstraint(Sketcher.Constraint("Symmetric", 10, 2, 20, 2, -1, 1))
sketch6.addConstraint(Sketcher.Constraint("Symmetric", 8, 2, 22, 2, -1, 1))
sketch6.addConstraint(Sketcher.Constraint("Horizontal", 5, 2, 16, 2))
sketch6.addConstraint(Sketcher.Constraint("Vertical", 3, 2, 4, 2))
sketch6.addConstraint(Sketcher.Constraint("Vertical", 7, 2, 8, 2))
sketch6.addConstraint(Sketcher.Constraint("Vertical", 6, 2, 9, 2))
sketch6.addConstraint(Sketcher.Constraint("Equal", 6, 8))
sketch6.addConstraint(Sketcher.Constraint("DistanceX", 1, 1, 1, 2, Q("1000 mm")))
sketch6.addConstraint(Sketcher.Constraint("DistanceX", 5, 1, 5, 2, Q("400 mm")))
sketch6.addConstraint(Sketcher.Constraint("DistanceY", 0, 1, 0, 2, Q("600 mm")))
sketch6.addConstraint(Sketcher.Constraint("DistanceY", 4, 1, 4, 2, Q("1200 mm")))
sketch6.addConstraint(Sketcher.Constraint("DistanceX", 0, 2, -1, 1, Q("3000 mm")))
sketch6.addConstraint(Sketcher.Constraint("DistanceY", -1, 1, 0, 2, Q("2250 mm")))
sketch6.addConstraint(Sketcher.Constraint("DistanceY", 8, 2, -1, 1, Q("850 mm")))
pad5 = doc.addObject("PartDesign::Pad", "Pad004")
body.addObject(pad5)
pad5.Profile = sketch6
pad5.Length = 0.1
pad5.Reversed = True

sketch7 = doc.addObject("Sketcher::SketchObject", "Sketch006")
body.addObject(sketch7)
sketch7.AttachmentSupport = (doc.XZ_Plane, [""])
sketch7.MapMode = "FlatFace"
sketch7.AttachmentOffset = App.Placement(V(0, 0, -40), App.Rotation())
sketch7.addGeometry(Part.Circle(V(-1636, 620, 0), V(0, 0, 1), 25), False)
sketch7.addGeometry(Part.Circle(V(-1235, 1240, 0), V(0, 0, 1), 25), False)
sketch7.addGeometry(Part.Circle(V(-1750, 0, 0), V(0, 0, 1), 25), False)
sketch7.addGeometry(Part.Circle(V(-1636, -620, 0), V(0, 0, 1), 25), False)
sketch7.addGeometry(Part.Circle(V(-1235, -1240, 0), V(0, 0, 1), 25), False)
sketch7.addGeometry(Part.Circle(V(1235, -1240, 0), V(0, 0, 1), 25), False)
sketch7.addGeometry(Part.Circle(V(1636, -620, 0), V(0, 0, 1), 25), False)
sketch7.addGeometry(Part.Circle(V(1750, 0, 0), V(0, 0, 1), 25), False)
sketch7.addGeometry(Part.Circle(V(1235, 1240, 0), V(0, 0, 1), 25), False)
sketch7.addGeometry(Part.Circle(V(1636, 620, 0), V(0, 0, 1), 25), False)
sketch7.addConstraint(Sketcher.Constraint("Equal", 0, 1))
sketch7.addConstraint(Sketcher.Constraint("Equal", 1, 2))
sketch7.addConstraint(Sketcher.Constraint("Equal", 2, 3))
sketch7.addConstraint(Sketcher.Constraint("Equal", 3, 4))
sketch7.addConstraint(Sketcher.Constraint("Equal", 4, 5))
sketch7.addConstraint(Sketcher.Constraint("Equal", 5, 6))
sketch7.addConstraint(Sketcher.Constraint("Equal", 6, 7))
sketch7.addConstraint(Sketcher.Constraint("Equal", 7, 8))
sketch7.addConstraint(Sketcher.Constraint("Equal", 8, 9))
sketch7.addConstraint(Sketcher.Constraint("Symmetric", 1, 3, 5, 3, -1, 1))
sketch7.addConstraint(Sketcher.Constraint("Symmetric", 0, 3, 6, 3, -1, 1))
sketch7.addConstraint(Sketcher.Constraint("Symmetric", 2, 3, 7, 3, -1, 1))
sketch7.addConstraint(Sketcher.Constraint("Symmetric", 4, 3, 8, 3, -1, 1))
sketch7.addConstraint(Sketcher.Constraint("Symmetric", 3, 3, 9, 3, -1, 1))
sketch7.addConstraint(Sketcher.Constraint("Symmetric", 4, 3, 5, 3, -2))
sketch7.addConstraint(Sketcher.Constraint("Symmetric", 3, 3, 6, 3, -2))
sketch7.addConstraint(Sketcher.Constraint("PointOnObject", 2, 3, -1))
sketch7.addConstraint(Sketcher.Constraint("Diameter", 0, Q("50 mm")))
sketch7.addConstraint(Sketcher.Constraint("DistanceY", -1, 1, 0, 3, Q("620 mm")))
sketch7.addConstraint(Sketcher.Constraint("DistanceY", -1, 1, 1, 3, Q("1240 mm")))
sketch7.addConstraint(Sketcher.Constraint("DistanceX", 2, 3, -1, 1, Q("1750 mm")))
sketch7.addConstraint(Sketcher.Constraint("DistanceX", 4, 3, 5, 3, Q("2469.736828 mm")))
sketch7.addConstraint(Sketcher.Constraint("DistanceX", 3, 3, 5, 3, Q("2871.358561 mm")))
pocket2 = doc.addObject("PartDesign::Pocket", "Pocket001")
body.addObject(pocket2)
pocket2.Profile = sketch7
pocket2.Length = 40
pocket2.Reversed = True

sketch8 = doc.addObject("Sketcher::SketchObject", "Sketch007")
body.addObject(sketch8)
sketch8.AttachmentSupport = (doc.XZ_Plane, [""])
sketch8.MapMode = "FlatFace"
sketch8.AttachmentOffset = App.Placement(V(0, 0, -30.1), App.Rotation())
sketch8.addGeometry(Part.LineSegment(V(-2510, 1650, 0), V(-2510, 2250, 0)), False)
sketch8.addGeometry(Part.LineSegment(V(-2510, 2250, 0), V(-2490, 2250, 0)), False)
sketch8.addGeometry(Part.LineSegment(V(-2490, 2250, 0), V(-2490, 1650, 0)), False)
sketch8.addGeometry(Part.LineSegment(V(-2490, 1650, 0), V(-2510, 1650, 0)), False)
sketch8.addGeometry(Part.LineSegment(V(2490, -2250, 0), V(2490, -1650, 0)), False)
sketch8.addGeometry(Part.LineSegment(V(2490, -1650, 0), V(2510, -1650, 0)), False)
sketch8.addGeometry(Part.LineSegment(V(2510, -1650, 0), V(2510, -2250, 0)), False)
sketch8.addGeometry(Part.LineSegment(V(2510, -2250, 0), V(2490, -2250, 0)), False)
sketch8.addConstraint(Sketcher.Constraint("Coincident", 0, 2, 1, 1))
sketch8.addConstraint(Sketcher.Constraint("Coincident", 1, 2, 2, 1))
sketch8.addConstraint(Sketcher.Constraint("Coincident", 2, 2, 3, 1))
sketch8.addConstraint(Sketcher.Constraint("Coincident", 3, 2, 0, 1))
sketch8.addConstraint(Sketcher.Constraint("Coincident", 4, 2, 5, 1))
sketch8.addConstraint(Sketcher.Constraint("Coincident", 5, 2, 6, 1))
sketch8.addConstraint(Sketcher.Constraint("Coincident", 6, 2, 7, 1))
sketch8.addConstraint(Sketcher.Constraint("Coincident", 7, 2, 4, 1))
sketch8.addConstraint(Sketcher.Constraint("Vertical", 0))
sketch8.addConstraint(Sketcher.Constraint("Horizontal", 1))
sketch8.addConstraint(Sketcher.Constraint("Vertical", 2))
sketch8.addConstraint(Sketcher.Constraint("Horizontal", 3))
sketch8.addConstraint(Sketcher.Constraint("Vertical", 4))
sketch8.addConstraint(Sketcher.Constraint("Horizontal", 5))
sketch8.addConstraint(Sketcher.Constraint("Vertical", 6))
sketch8.addConstraint(Sketcher.Constraint("Horizontal", 7))
sketch8.addConstraint(Sketcher.Constraint("Symmetric", 2, 2, 4, 2, -1, 1))
sketch8.addConstraint(Sketcher.Constraint("Symmetric", 0, 2, 6, 2, -1, 1))
sketch8.addConstraint(Sketcher.Constraint("DistanceX", 1, 1, 1, 2, Q("20 mm")))
sketch8.addConstraint(Sketcher.Constraint("DistanceY", 0, 1, 0, 2, Q("600 mm")))
sketch8.addConstraint(Sketcher.Constraint("DistanceX", 0, 2, -1, 1, Q("2510 mm")))
sketch8.addConstraint(Sketcher.Constraint("DistanceY", -1, 1, 0, 2, Q("2250 mm")))
pocket3 = doc.addObject("PartDesign::Pocket", "Pocket002")
body.addObject(pocket3)
pocket3.Profile = sketch8
pocket3.Length = 1
pocket3.Reversed = True

doc.recompute()
